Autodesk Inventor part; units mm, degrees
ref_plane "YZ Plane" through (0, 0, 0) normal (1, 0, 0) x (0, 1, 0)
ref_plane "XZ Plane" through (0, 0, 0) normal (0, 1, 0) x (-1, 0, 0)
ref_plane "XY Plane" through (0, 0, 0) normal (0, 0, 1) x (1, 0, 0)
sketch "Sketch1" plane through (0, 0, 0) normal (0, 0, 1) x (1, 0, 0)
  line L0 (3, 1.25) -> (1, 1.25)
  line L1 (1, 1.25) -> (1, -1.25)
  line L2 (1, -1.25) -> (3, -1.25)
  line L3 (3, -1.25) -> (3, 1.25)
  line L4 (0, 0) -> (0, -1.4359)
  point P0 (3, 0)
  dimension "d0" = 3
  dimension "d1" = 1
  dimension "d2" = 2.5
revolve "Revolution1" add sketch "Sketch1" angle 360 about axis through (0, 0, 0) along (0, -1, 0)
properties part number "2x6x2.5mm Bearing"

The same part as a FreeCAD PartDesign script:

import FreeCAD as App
import Part
import Sketcher

V = App.Vector
Q = App.Units.Quantity

doc = App.newDocument("Part")
body = doc.addObject("PartDesign::Body", "Body")

sketch1 = body.newObject("Sketcher::SketchObject", "Sketch")
sketch1.AttachmentSupport = (doc.getObject("XY_Plane"), [""])
sketch1.MapMode = "FlatFace"
sketch1.addGeometry(Part.LineSegment(V(3, -1.2, 0), V(3, 1.2, 0)), False)
sketch1.addGeometry(Part.LineSegment(V(3, 1.2, 0), V(1, 1.2, 0)), False)
sketch1.addGeometry(Part.LineSegment(V(1, 1.2, 0), V(1, -1.2, 0)), False)
sketch1.addGeometry(Part.LineSegment(V(1, -1.2, 0), V(3, -1.2, 0)), False)
sketch1.addConstraint(Sketcher.Constraint("Coincident", 0, 2, 1, 1))
sketch1.addConstraint(Sketcher.Constraint("Coincident", 1, 2, 2, 1))
sketch1.addConstraint(Sketcher.Constraint("Coincident", 2, 2, 3, 1))
sketch1.addConstraint(Sketcher.Constraint("Coincident", 3, 2, 0, 1))
sketch1.addConstraint(Sketcher.Constraint("Vertical", 0))
sketch1.addConstraint(Sketcher.Constraint("Horizontal", 1))
sketch1.addConstraint(Sketcher.Constraint("Vertical", 2))
sketch1.addConstraint(Sketcher.Constraint("Horizontal", 3))
sketch1.addConstraint(Sketcher.Constraint("DistanceY", 0, 1, 0, 2, Q("2.5 mm")))
sketch1.addConstraint(Sketcher.Constraint("DistanceX", -1, 1, 0, 2, Q("3 mm")))
sketch1.addConstraint(Sketcher.Constraint("DistanceX", -1, 1, 1, 2, Q("1 mm")))
sketch1.addConstraint(Sketcher.Constraint("DistanceY", -1, 1, 0, 2, Q("1.25 mm")))
revolution = body.newObject("PartDesign::Revolution", "Revolution")
revolution.Profile = sketch1
revolution.ReferenceAxis = (sketch1, ["V_Axis"])
revolution.Angle = 360

doc.recompute()
